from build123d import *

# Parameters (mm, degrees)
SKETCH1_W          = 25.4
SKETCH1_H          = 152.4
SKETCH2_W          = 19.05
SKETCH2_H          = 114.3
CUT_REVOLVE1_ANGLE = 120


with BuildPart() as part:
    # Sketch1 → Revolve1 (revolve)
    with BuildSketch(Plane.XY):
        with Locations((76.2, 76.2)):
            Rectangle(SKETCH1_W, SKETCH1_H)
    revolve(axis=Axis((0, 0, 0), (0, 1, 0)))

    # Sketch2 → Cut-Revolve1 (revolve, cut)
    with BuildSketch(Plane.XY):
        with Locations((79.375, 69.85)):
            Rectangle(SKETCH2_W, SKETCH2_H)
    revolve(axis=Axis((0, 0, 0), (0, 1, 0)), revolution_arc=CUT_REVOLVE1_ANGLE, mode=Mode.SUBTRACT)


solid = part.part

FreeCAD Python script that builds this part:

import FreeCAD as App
import Part
import Sketcher
from FreeCAD import Vector
Q = App.Units.Quantity


def add_polygon(sketch, points):
    """Adds a closed chain of lines whose ends are joined by coincident constraints."""
    first, n = sketch.GeometryCount, len(points)
    for a, b in zip(points, points[1:] + points[:1]):
        sketch.addGeometry(Part.LineSegment(App.Vector(*a, 0), App.Vector(*b, 0)), False)
    for i in range(n):
        sketch.addConstraint(Sketcher.Constraint("Coincident", first + i, 2, first + (i + 1) % n, 1))

doc = App.newDocument("Part")
params = doc.addObject("Spreadsheet::Sheet", "Params")
for row, (alias, value) in enumerate([
    ("sketch1_width", "1 in"),
    ("sketch1_height", "6 in"),
    ("revolution_angle", "360 deg"),
    ("sketch2_height", "4.5 in"),
    ("sketch2_width", "0.75 in"),
    ("groove_angle", "120 deg"),
], start=1):
    params.set(f"A{row}", alias)
    params.set(f"B{row}", "=" + value)
    params.setAlias(f"B{row}", alias)

body = doc.addObject("PartDesign::Body", "Body")

sketch1 = doc.addObject("Sketcher::SketchObject", "Sketch")
body.addObject(sketch1)
sketch1.AttachmentSupport = (doc.XY_Plane, [""])
sketch1.MapMode = "FlatFace"
add_polygon(sketch1, [(63.5, 152.4), (63.5, 0), (88.9, 0), (88.9, 152.4)])
sketch1.addConstraint(Sketcher.Constraint("Vertical", 0))
sketch1.addConstraint(Sketcher.Constraint("Horizontal", 1))
sketch1.addConstraint(Sketcher.Constraint("Vertical", 2))
sketch1.addConstraint(Sketcher.Constraint("Horizontal", 3))
sketch1.addConstraint(Sketcher.Constraint("PointOnObject", 0, 2, -1))
sketch1.addConstraint(Sketcher.Constraint("DistanceX", 1, 1, 1, 2, Q("1 in")))
sketch1.addConstraint(Sketcher.Constraint("DistanceY", 0, 2, 0, 1, Q("6 in")))
sketch1.addConstraint(Sketcher.Constraint("DistanceX", -1, 1, 0, 2, Q("2.5 in")))
sketch1.setExpression("Constraints[9]", "Params.sketch1_width")
sketch1.setExpression("Constraints[10]", "Params.sketch1_height")
revolution = doc.addObject("PartDesign::Revolution", "Revolution")
body.addObject(revolution)
revolution.Profile = sketch1
revolution.ReferenceAxis = (sketch1, ["V_Axis"])
revolution.setExpression("Angle", "Params.revolution_angle")

sketch2 = doc.addObject("Sketcher::SketchObject", "Sketch001")
body.addObject(sketch2)
sketch2.AttachmentSupport = (doc.XY_Plane, [""])
sketch2.MapMode = "FlatFace"
add_polygon(sketch2, [(69.85, 127), (69.85, 12.7), (88.9, 12.7), (88.9, 127)])
sketch2.addConstraint(Sketcher.Constraint("Vertical", 0))
sketch2.addConstraint(Sketcher.Constraint("Horizontal", 1))
sketch2.addConstraint(Sketcher.Constraint("Vertical", 2))
sketch2.addConstraint(Sketcher.Constraint("Horizontal", 3))
sketch2.addConstraint(Sketcher.Constraint("DistanceY", 0, 2, 0, 1, Q("4.5 in")))
sketch2.addConstraint(Sketcher.Constraint("DistanceY", -1, 1, 2, 2, Q("5 in")))
sketch2.addConstraint(Sketcher.Constraint("DistanceX", 1, 1, 1, 2, Q("0.75 in")))
sketch2.addConstraint(Sketcher.Constraint("DistanceX", -1, 1, 1, 2, Q("3.5 in")))
sketch2.setExpression("Constraints[8]", "Params.sketch2_height")
sketch2.setExpression("Constraints[10]", "Params.sketch2_width")
groove = doc.addObject("PartDesign::Groove", "Groove")
body.addObject(groove)
groove.Profile = sketch2
groove.ReferenceAxis = (sketch2, ["V_Axis"])
groove.setExpression("Angle", "Params.groove_angle")

doc.recompute()
